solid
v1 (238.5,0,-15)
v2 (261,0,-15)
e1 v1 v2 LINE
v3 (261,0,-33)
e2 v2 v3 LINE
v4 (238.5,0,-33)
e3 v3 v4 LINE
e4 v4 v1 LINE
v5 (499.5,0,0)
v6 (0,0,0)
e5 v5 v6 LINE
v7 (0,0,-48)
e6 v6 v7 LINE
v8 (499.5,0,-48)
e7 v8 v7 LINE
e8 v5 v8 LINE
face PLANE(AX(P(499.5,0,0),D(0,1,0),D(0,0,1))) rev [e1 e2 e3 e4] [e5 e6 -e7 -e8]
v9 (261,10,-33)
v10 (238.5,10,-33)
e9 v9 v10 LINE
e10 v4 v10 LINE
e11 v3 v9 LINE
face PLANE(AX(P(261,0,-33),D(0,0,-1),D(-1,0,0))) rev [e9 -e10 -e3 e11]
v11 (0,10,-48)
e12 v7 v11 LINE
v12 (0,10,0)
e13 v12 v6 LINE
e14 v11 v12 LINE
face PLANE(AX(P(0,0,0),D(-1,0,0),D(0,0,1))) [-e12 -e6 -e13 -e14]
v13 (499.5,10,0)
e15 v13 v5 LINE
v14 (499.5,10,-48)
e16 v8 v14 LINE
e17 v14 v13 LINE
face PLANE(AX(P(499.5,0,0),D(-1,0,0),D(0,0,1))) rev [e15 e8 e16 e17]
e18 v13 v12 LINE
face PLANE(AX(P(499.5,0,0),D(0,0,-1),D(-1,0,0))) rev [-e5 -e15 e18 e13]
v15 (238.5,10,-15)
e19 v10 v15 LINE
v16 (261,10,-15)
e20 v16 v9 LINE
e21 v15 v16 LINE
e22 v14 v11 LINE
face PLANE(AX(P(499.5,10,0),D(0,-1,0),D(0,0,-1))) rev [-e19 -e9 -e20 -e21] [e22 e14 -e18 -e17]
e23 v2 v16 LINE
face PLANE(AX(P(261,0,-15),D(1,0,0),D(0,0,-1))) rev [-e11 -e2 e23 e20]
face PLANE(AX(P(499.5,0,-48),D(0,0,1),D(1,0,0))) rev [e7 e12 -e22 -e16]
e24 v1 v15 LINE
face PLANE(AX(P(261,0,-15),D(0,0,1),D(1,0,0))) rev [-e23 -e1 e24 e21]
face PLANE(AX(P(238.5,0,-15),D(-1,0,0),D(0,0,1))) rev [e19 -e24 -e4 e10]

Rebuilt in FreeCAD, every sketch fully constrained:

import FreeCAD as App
import Part
import Sketcher
from FreeCAD import Vector


def add_polygon(sketch, points):
    """Adds a closed chain of lines whose ends are joined by coincident constraints."""
    first, n = sketch.GeometryCount, len(points)
    for a, b in zip(points, points[1:] + points[:1]):
        sketch.addGeometry(Part.LineSegment(App.Vector(*a, 0), App.Vector(*b, 0)), False)
    for i in range(n):
        sketch.addConstraint(Sketcher.Constraint("Coincident", first + i, 2, first + (i + 1) % n, 1))

doc = App.newDocument("Part")
body = doc.addObject("PartDesign::Body", "Body")

sketch1 = body.newObject("Sketcher::SketchObject", "Sketch")
sketch1.AttachmentSupport = (doc.getObject("YZ_Plane"), [""])
sketch1.MapMode = "FlatFace"
add_polygon(sketch1, [(10, 0), (0, 0), (0, -48), (10, -48)])
sketch1.addConstraint(Sketcher.Constraint("Horizontal", 0))
sketch1.addConstraint(Sketcher.Constraint("Vertical", 1))
sketch1.addConstraint(Sketcher.Constraint("Horizontal", 2))
sketch1.addConstraint(Sketcher.Constraint("Vertical", 3))
sketch1.addConstraint(Sketcher.Constraint("Coincident", 0, 2, -1, 1))
sketch1.addConstraint(Sketcher.Constraint("DistanceX", 0, 2, 0, 1, 10.0))
sketch1.addConstraint(Sketcher.Constraint("DistanceY", 1, 2, 1, 1, 48.0))
pad1 = body.newObject("PartDesign::Pad", "Pad")
pad1.Profile = sketch1
pad1.Length = 499.5

sketch2 = body.newObject("Sketcher::SketchObject", "Sketch001")
sketch2.AttachmentSupport = (doc.getObject("XZ_Plane"), [""])
sketch2.MapMode = "FlatFace"
sketch2.AttachmentOffset = App.Placement(Vector(0, 0, -10), App.Rotation())
add_polygon(sketch2, [(238, -33), (238, -15), (261, -15), (261, -33)])
sketch2.addConstraint(Sketcher.Constraint("Vertical", 0))
sketch2.addConstraint(Sketcher.Constraint("Horizontal", 1))
sketch2.addConstraint(Sketcher.Constraint("Vertical", 2))
sketch2.addConstraint(Sketcher.Constraint("Horizontal", 3))
sketch2.addConstraint(Sketcher.Constraint("DistanceY", 0, 1, 0, 2, 18.0))
sketch2.addConstraint(Sketcher.Constraint("DistanceX", 1, 1, 1, 2, 22.5))
sketch2.addConstraint(Sketcher.Constraint("DistanceY", 0, 2, -1, 1, 15.0))
sketch2.addConstraint(Sketcher.Constraint("DistanceX", -1, 1, 1, 2, 261.0))
pocket1 = body.newObject("PartDesign::Pocket", "Pocket")
pocket1.Profile = sketch2
pocket1.Type = "ThroughAll"
pocket1.Reversed = True

doc.recompute()
